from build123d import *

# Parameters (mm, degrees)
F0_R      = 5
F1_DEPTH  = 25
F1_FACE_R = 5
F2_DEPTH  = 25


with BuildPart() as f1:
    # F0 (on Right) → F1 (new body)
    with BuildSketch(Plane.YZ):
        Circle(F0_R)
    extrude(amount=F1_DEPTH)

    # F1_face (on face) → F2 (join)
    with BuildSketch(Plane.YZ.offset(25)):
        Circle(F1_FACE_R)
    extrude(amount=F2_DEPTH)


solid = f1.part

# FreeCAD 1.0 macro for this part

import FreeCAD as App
import Part
import Sketcher
from FreeCAD import Vector
Q = App.Units.Quantity

doc = App.newDocument("Part")
body = doc.addObject("PartDesign::Body", "Body")

# Sketch on YZ plane
sketch1 = body.newObject("Sketcher::SketchObject", "Sketch")
sketch1.AttachmentSupport = (doc.getObject("YZ_Plane"), [""])
sketch1.MapMode = "FlatFace"
sketch1.addGeometry(Part.Circle(Vector(0, 0, 0), Vector(0, 0, 1), 5), False)
sketch1.addConstraint(Sketcher.Constraint("Coincident", 0, 3, -1, 1))
sketch1.addConstraint(Sketcher.Constraint("Diameter", 0, Q("10 mm")))
pad1 = body.newObject("PartDesign::Pad", "Pad")
pad1.Profile = sketch1
pad1.Length = 25

# Sketch on YZ plane
sketch2 = body.newObject("Sketcher::SketchObject", "Sketch001")
sketch2.AttachmentSupport = (doc.getObject("YZ_Plane"), [""])
sketch2.MapMode = "FlatFace"
sketch2.AttachmentOffset = App.Placement(Vector(0, 0, 25), App.Rotation())
sketch2.addGeometry(Part.Circle(Vector(0, 0, 0), Vector(0, 0, 1), 5), False)
sketch2.addConstraint(Sketcher.Constraint("Coincident", 0, 3, -1, 1))
sketch2.addConstraint(Sketcher.Constraint("Diameter", 0, Q("10 mm")))
pad2 = body.newObject("PartDesign::Pad", "Pad001")
pad2.Profile = sketch2
pad2.Length = 25

doc.recompute()
